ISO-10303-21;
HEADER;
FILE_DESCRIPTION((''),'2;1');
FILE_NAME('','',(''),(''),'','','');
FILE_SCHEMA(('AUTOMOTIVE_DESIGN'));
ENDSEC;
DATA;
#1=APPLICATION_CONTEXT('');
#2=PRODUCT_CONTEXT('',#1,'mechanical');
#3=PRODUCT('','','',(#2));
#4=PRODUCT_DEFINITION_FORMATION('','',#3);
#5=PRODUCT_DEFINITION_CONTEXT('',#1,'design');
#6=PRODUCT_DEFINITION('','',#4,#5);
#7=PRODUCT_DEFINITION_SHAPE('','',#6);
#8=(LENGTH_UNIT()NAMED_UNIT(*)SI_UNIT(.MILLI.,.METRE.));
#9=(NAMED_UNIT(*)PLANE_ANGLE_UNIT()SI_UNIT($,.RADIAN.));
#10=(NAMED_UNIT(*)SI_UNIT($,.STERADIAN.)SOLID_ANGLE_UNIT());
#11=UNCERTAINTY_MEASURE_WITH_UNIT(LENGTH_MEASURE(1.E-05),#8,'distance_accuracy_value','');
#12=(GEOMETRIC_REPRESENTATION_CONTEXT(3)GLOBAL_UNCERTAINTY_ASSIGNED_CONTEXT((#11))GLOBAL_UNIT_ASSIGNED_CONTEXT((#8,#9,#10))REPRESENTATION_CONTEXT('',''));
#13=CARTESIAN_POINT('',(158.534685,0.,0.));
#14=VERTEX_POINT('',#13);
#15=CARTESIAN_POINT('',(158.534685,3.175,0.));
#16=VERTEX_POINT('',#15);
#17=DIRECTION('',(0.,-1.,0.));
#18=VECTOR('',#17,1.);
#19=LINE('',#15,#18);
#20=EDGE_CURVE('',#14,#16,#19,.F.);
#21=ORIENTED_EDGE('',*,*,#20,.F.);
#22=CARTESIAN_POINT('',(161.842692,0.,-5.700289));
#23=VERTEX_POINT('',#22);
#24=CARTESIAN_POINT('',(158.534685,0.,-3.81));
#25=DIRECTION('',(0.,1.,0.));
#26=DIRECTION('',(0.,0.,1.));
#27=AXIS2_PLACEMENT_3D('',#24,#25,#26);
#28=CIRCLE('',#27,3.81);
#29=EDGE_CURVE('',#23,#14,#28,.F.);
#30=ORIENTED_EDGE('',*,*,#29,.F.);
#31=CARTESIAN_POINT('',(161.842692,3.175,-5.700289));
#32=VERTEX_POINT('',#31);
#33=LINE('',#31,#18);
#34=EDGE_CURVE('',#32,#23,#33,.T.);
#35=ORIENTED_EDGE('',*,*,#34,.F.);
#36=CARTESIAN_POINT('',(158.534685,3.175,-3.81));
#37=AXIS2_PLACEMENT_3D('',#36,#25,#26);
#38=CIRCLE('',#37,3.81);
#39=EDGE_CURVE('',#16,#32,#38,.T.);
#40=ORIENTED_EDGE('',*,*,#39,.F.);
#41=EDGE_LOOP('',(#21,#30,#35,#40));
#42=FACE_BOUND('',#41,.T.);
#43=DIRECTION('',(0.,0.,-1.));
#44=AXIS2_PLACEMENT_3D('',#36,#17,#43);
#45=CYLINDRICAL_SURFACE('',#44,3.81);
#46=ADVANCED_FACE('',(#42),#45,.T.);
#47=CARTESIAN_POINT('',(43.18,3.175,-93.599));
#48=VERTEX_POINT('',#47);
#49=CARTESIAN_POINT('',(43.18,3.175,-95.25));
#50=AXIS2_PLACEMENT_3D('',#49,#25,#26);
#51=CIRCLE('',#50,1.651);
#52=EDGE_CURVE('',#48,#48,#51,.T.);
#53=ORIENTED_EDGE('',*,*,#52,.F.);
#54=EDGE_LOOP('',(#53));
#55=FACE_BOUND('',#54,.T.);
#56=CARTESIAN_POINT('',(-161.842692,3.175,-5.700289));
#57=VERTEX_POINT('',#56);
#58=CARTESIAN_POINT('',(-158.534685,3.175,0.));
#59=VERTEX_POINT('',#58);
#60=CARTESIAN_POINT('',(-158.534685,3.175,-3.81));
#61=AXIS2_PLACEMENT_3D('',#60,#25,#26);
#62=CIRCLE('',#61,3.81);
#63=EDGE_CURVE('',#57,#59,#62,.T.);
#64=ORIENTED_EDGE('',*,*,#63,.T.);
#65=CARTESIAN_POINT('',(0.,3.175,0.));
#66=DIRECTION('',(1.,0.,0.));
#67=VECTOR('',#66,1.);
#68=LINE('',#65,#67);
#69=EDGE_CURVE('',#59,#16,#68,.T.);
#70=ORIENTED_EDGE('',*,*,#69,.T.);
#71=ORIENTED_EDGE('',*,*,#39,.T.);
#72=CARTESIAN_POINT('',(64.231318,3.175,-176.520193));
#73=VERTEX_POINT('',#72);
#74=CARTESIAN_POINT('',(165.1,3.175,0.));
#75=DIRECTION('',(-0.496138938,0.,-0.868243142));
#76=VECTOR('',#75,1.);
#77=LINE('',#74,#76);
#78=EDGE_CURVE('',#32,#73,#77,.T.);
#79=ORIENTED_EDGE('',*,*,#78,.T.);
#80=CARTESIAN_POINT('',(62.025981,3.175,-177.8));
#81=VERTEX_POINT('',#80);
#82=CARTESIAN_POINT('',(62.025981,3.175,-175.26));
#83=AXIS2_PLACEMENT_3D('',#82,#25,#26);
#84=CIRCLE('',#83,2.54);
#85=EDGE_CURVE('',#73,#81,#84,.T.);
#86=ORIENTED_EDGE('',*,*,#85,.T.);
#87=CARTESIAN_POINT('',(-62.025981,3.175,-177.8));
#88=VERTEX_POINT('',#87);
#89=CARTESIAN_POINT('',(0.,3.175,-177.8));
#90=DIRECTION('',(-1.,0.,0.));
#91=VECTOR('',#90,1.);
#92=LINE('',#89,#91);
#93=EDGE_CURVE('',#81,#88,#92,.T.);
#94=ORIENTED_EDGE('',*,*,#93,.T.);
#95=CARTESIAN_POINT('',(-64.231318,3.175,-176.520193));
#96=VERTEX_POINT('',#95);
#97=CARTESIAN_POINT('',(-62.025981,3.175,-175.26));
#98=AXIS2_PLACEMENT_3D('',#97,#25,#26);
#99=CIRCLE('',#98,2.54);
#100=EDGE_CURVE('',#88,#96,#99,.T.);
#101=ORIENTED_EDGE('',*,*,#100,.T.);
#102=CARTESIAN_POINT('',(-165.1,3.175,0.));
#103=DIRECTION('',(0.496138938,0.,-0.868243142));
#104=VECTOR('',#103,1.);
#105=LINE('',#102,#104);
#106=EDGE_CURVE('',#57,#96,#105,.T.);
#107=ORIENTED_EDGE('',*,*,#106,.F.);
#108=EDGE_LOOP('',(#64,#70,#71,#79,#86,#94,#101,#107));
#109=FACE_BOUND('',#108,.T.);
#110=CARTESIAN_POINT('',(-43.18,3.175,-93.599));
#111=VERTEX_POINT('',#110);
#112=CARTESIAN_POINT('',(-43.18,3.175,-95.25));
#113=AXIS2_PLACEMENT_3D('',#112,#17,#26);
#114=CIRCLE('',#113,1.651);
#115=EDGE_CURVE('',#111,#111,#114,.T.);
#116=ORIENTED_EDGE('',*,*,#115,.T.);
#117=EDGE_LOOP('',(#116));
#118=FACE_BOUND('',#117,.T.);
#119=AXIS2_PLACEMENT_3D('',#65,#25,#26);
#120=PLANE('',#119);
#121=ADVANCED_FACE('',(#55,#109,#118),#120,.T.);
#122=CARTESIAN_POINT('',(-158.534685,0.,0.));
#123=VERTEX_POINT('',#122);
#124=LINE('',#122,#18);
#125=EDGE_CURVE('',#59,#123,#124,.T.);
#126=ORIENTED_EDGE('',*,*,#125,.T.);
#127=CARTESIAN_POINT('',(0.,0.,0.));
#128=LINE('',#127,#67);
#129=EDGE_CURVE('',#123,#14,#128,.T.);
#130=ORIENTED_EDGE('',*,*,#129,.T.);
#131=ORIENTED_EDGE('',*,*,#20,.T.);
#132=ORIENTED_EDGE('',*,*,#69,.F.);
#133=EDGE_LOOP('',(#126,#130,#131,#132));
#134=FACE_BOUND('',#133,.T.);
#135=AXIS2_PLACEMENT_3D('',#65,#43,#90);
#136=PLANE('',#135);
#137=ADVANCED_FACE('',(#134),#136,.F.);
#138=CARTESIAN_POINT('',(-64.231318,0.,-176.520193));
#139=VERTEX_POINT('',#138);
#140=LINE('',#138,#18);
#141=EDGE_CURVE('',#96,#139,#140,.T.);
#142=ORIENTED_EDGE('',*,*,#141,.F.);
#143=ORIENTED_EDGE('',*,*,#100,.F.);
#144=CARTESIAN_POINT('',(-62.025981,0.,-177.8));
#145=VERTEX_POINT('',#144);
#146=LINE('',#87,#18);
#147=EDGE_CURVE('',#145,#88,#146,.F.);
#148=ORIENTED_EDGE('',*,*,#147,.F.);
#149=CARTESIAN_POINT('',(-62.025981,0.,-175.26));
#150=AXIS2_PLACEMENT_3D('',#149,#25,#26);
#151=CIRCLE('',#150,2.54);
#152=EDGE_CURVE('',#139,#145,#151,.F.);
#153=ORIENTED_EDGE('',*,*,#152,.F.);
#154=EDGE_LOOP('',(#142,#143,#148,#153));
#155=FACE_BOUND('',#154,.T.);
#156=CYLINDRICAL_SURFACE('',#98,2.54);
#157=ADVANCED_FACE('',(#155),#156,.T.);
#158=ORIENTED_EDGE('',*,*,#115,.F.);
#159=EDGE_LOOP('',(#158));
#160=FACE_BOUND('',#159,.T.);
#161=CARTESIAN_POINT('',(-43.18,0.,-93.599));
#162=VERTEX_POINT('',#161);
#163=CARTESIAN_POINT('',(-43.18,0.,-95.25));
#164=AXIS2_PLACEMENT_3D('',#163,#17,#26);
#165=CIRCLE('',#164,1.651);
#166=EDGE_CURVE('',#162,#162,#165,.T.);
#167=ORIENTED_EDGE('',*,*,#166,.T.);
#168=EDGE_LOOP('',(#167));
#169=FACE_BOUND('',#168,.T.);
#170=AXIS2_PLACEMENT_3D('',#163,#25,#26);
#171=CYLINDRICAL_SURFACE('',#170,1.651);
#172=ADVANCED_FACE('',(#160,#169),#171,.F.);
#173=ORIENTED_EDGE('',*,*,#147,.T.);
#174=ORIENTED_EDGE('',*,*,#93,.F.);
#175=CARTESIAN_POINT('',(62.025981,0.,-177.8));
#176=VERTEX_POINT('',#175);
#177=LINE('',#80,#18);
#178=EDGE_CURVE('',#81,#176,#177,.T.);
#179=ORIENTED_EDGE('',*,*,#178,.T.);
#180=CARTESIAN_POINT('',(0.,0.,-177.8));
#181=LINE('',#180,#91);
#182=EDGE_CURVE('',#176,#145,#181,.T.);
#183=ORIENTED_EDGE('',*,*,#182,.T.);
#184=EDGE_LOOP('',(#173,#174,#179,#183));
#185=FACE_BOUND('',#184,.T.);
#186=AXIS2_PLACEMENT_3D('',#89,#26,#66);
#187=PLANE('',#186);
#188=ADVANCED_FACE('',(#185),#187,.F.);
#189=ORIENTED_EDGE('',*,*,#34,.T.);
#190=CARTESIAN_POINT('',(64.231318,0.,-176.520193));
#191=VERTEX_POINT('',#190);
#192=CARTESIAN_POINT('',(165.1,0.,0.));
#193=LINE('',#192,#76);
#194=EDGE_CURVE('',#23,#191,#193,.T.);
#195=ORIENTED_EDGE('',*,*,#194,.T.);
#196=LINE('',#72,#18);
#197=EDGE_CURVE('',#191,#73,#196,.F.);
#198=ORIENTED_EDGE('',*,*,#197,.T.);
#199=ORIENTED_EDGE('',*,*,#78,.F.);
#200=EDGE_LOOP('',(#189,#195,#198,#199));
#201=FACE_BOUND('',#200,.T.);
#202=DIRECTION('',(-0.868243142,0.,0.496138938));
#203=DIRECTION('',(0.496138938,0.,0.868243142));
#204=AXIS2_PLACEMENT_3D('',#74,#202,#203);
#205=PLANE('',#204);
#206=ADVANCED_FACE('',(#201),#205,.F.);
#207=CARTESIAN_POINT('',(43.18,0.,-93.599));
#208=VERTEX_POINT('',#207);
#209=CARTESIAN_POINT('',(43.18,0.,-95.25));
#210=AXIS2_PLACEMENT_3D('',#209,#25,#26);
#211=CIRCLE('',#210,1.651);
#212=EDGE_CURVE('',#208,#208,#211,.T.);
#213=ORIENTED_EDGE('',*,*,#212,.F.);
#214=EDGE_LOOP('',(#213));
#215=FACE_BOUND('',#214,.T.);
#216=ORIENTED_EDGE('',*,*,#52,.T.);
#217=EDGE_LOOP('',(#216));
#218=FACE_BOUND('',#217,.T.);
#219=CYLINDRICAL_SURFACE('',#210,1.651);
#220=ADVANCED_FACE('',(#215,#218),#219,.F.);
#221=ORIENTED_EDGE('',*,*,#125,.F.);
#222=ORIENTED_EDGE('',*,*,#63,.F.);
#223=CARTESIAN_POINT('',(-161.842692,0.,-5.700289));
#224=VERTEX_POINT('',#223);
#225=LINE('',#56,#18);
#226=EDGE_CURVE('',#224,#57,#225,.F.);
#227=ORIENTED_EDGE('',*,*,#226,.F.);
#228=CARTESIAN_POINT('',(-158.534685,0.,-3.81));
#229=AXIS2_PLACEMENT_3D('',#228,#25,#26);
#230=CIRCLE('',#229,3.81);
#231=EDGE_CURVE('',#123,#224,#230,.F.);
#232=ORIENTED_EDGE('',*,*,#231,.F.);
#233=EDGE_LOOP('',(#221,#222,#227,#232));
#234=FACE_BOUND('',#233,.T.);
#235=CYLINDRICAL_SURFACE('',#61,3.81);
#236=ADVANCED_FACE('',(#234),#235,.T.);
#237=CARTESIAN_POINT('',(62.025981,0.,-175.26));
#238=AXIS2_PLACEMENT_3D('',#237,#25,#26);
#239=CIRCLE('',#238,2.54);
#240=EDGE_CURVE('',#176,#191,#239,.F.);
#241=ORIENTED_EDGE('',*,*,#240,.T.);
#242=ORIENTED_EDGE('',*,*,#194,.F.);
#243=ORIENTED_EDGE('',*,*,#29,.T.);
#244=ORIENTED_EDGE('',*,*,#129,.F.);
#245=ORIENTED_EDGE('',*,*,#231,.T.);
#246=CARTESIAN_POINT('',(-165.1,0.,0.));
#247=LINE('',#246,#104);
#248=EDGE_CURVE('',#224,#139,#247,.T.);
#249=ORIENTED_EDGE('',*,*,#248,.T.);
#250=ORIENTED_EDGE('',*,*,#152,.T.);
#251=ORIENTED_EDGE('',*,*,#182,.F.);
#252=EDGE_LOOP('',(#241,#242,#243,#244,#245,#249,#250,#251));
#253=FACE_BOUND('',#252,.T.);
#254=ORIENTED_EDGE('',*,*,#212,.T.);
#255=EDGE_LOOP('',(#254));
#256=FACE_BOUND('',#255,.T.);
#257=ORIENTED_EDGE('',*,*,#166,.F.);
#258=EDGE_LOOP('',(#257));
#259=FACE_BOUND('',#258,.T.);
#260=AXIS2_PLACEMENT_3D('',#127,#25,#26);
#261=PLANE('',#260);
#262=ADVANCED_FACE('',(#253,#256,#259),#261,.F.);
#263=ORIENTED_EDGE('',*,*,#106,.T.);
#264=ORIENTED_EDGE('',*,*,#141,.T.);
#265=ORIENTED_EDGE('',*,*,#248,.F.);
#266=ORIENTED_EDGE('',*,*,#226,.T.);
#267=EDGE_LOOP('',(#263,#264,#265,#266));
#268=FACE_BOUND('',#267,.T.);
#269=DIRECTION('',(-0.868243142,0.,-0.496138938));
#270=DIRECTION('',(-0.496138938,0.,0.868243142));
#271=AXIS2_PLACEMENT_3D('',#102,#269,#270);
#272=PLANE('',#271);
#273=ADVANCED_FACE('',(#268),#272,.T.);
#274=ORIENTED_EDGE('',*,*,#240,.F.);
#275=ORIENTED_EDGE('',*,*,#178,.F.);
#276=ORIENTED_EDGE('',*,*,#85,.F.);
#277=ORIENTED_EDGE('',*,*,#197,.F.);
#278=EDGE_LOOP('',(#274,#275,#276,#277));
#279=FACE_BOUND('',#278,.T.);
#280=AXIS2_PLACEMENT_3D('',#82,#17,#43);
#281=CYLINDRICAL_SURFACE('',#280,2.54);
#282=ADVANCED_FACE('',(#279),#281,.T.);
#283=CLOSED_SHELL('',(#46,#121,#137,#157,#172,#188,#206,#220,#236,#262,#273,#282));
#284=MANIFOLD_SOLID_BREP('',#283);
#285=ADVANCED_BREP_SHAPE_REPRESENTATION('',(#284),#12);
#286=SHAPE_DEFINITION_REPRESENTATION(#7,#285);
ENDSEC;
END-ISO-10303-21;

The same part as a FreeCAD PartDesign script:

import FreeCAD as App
import Part
import Sketcher
from FreeCAD import Vector
Q = App.Units.Quantity


def edges_at(feature, points):
    """Names of the edges that pass closest to the given points."""
    edges = feature.Shape.Edges
    near = lambda p: min(range(len(edges)), key=lambda i: edges[i].distToShape(Part.Vertex(*p))[0])
    return sorted({f"Edge{near(p) + 1}" for p in points})

doc = App.newDocument("Part")
body = doc.addObject("PartDesign::Body", "Body")

# Sketch on XZ plane
sketch1 = doc.addObject("Sketcher::SketchObject", "Sketch")
body.addObject(sketch1)
sketch1.AttachmentSupport = (doc.XZ_Plane, [""])
sketch1.MapMode = "FlatFace"
sketch1.addGeometry([
    Part.LineSegment(Vector(0, 0, 0), Vector(165.1, 0, 0)),
    Part.LineSegment(Vector(165.1, 0, 0), Vector(63.5, -177.8, 0)),
    Part.LineSegment(Vector(63.5, -177.8, 0), Vector(0, -177.8, 0)),
    Part.LineSegment(Vector(0, -177.8, 0), Vector(0, 0, 0)),
], False)
sketch1.addConstraint([
    Sketcher.Constraint("Coincident", 0, 2, 1, 1),
    Sketcher.Constraint("Coincident", 1, 2, 2, 1),
    Sketcher.Constraint("Coincident", 2, 2, 3, 1),
    Sketcher.Constraint("Coincident", 3, 2, 0, 1),
    Sketcher.Constraint("Horizontal", 0),
    Sketcher.Constraint("Horizontal", 2),
    Sketcher.Constraint("Vertical", 3),
    Sketcher.Constraint("Coincident", 3, 2, -1, 1),
    Sketcher.Constraint("DistanceY", 3, 1, 3, 2, Q("7 in")),
    Sketcher.Constraint("DistanceX", 0, 1, 0, 2, Q("6.5 in")),
    Sketcher.Constraint("DistanceX", 2, 2, 2, 1, Q("2.5 in")),
])
pad1 = doc.addObject("PartDesign::Pad", "Pad")
body.addObject(pad1)
pad1.Profile = sketch1
pad1.Length = Q("0.125 in")
pad1.Reversed = True
doc.recompute()

mirrored = doc.addObject("PartDesign::Mirrored", "Mirrored")
body.addObject(mirrored)
mirrored.Originals = [pad1]
mirrored.MirrorPlane = (doc.YZ_Plane, [""])
body.Tip = mirrored
doc.recompute()

fillet = doc.addObject("PartDesign::Fillet", "Fillet")
body.addObject(fillet)
fillet.Base = (mirrored, edges_at(mirrored, [(-165.1, 1.587, 0), (165.1, 1.587, 0)]))
fillet.Radius = Q("0.15 in")
doc.recompute()

fillet2 = doc.addObject("PartDesign::Fillet", "Fillet001")
body.addObject(fillet2)
fillet2.Base = (fillet, edges_at(fillet, [(-63.5, 1.587, -177.8), (63.5, 1.587, -177.8)]))
fillet2.Radius = Q("0.1 in")

# Sketch on XZ plane
sketch2 = doc.addObject("Sketcher::SketchObject", "Sketch001")
body.addObject(sketch2)
sketch2.AttachmentSupport = (doc.XZ_Plane, [""])
sketch2.MapMode = "FlatFace"
sketch2.AttachmentOffset = App.Placement(Vector(0, 0, -0.125 * 25.4), App.Rotation())
sketch2.addGeometry(Part.Circle(Vector(43.18, -95.25, 0), Vector(0, 0, 1), 1.651), False)
sketch2.addConstraint([
    Sketcher.Constraint("Diameter", 0, Q("0.13 in")),
    Sketcher.Constraint("DistanceX", -1, 1, 0, 3, Q("1.7 in")),
    Sketcher.Constraint("DistanceY", 0, 3, -1, 1, Q("3.75 in")),
])
pocket1 = doc.addObject("PartDesign::Pocket", "Pocket")
body.addObject(pocket1)
pocket1.Profile = sketch2
pocket1.Type = "ThroughAll"
pocket1.Reversed = True
doc.recompute()

mirrored2 = doc.addObject("PartDesign::Mirrored", "Mirrored001")
body.addObject(mirrored2)
mirrored2.Originals = [pocket1]
mirrored2.MirrorPlane = (doc.YZ_Plane, [""])
body.Tip = mirrored2

doc.recompute()
